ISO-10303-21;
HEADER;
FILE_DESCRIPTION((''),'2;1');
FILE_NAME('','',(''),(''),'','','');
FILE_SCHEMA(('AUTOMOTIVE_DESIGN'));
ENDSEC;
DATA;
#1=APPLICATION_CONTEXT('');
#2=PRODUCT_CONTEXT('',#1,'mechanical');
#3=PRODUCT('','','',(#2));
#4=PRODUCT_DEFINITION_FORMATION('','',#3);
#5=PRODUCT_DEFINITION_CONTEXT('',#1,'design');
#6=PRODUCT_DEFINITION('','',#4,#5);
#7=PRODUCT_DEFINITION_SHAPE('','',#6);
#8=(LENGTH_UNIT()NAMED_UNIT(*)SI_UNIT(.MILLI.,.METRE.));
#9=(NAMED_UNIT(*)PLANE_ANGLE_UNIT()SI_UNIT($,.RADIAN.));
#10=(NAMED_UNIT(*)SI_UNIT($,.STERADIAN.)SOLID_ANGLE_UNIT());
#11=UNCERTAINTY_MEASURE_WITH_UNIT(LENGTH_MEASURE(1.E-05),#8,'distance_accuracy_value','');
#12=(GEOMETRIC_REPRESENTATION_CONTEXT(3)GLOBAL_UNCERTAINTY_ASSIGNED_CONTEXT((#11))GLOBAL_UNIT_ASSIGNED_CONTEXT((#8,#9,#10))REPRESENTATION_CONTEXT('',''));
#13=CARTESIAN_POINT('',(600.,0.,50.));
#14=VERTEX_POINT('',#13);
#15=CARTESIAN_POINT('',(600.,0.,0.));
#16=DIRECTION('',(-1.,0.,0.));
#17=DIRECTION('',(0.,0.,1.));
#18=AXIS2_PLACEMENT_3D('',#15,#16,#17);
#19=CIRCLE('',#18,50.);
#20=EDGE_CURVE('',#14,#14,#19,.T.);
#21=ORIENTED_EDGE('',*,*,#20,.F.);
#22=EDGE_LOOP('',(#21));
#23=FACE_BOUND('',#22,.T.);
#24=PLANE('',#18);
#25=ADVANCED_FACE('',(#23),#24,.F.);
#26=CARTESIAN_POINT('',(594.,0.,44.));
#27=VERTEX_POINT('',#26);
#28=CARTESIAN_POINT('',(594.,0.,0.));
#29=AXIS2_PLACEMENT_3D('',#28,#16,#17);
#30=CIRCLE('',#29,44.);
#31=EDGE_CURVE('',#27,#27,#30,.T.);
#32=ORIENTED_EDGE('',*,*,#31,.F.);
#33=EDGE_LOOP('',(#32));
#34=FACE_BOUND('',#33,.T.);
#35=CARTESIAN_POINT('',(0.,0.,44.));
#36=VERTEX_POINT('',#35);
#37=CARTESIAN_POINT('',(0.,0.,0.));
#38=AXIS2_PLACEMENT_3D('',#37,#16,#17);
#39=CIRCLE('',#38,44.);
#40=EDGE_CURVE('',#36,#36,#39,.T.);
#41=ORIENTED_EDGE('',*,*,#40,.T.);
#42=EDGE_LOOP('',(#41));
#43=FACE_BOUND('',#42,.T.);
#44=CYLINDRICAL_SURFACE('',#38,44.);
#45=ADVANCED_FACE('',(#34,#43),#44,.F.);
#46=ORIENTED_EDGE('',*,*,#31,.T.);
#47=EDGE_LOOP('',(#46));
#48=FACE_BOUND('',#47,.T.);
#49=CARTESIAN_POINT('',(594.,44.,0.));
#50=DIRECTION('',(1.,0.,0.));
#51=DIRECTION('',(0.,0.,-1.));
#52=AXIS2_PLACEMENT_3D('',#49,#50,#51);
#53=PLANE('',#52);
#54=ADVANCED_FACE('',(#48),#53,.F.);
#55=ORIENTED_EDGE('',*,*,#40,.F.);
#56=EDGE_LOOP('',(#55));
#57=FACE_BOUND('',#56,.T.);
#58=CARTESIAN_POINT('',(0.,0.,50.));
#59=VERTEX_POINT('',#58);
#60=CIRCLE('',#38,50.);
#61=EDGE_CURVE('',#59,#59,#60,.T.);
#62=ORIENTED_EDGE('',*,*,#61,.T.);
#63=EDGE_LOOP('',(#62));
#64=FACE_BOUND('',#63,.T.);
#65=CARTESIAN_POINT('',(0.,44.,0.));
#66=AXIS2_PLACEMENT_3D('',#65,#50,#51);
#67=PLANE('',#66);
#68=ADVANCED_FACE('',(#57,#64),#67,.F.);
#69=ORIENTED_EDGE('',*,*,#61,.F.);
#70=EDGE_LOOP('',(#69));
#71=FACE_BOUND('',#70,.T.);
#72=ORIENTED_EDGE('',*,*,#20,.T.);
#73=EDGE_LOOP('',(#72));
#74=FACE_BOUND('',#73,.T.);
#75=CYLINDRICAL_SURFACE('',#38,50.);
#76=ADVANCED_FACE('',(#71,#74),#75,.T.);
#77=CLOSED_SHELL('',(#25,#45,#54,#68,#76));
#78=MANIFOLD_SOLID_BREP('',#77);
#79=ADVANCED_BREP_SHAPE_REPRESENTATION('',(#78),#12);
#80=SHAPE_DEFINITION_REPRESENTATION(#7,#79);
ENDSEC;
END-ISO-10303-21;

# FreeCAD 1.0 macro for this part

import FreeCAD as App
import Part
import Sketcher

V = App.Vector

doc = App.newDocument("Part")
body = doc.addObject("PartDesign::Body", "Body")

# Sketch on XY plane
sketch1 = body.newObject("Sketcher::SketchObject", "Sketch")
sketch1.AttachmentSupport = (doc.getObject("XY_Plane"), [""])
sketch1.MapMode = "FlatFace"
sketch1.addGeometry([
    Part.LineSegment(V(594, 44, 0), V(594, 0, 0)),  # 0
    Part.LineSegment(V(594, 0, 0), V(600, 0, 0)),  # 1
    Part.LineSegment(V(600, 0, 0), V(600, 50, 0)),  # 2
    Part.LineSegment(V(600, 50, 0), V(0, 50, 0)),  # 3
    Part.LineSegment(V(0, 50, 0), V(0, 44, 0)),  # 4
    Part.LineSegment(V(0, 44, 0), V(594, 44, 0)),  # 5
], False)
sketch1.addConstraint([
    Sketcher.Constraint("Coincident", 0, 2, 1, 1),
    Sketcher.Constraint("Coincident", 1, 2, 2, 1),
    Sketcher.Constraint("Coincident", 2, 2, 3, 1),
    Sketcher.Constraint("Coincident", 3, 2, 4, 1),
    Sketcher.Constraint("Coincident", 4, 2, 5, 1),
    Sketcher.Constraint("Coincident", 5, 2, 0, 1),
    Sketcher.Constraint("Vertical", 0),
    Sketcher.Constraint("Horizontal", 1),
    Sketcher.Constraint("Vertical", 2),
    Sketcher.Constraint("Horizontal", 3),
    Sketcher.Constraint("Vertical", 4),
    Sketcher.Constraint("Horizontal", 5),
    Sketcher.Constraint("PointOnObject", 0, 2, -1),
    Sketcher.Constraint("PointOnObject", 3, 2, -2),
    Sketcher.Constraint("Equal", 1, 4),
    Sketcher.Constraint("DistanceX", 1, 1, 1, 2, 6.0),
    Sketcher.Constraint("DistanceX", 3, 2, 3, 1, 600.0),
    Sketcher.Constraint("DistanceY", 0, 2, 0, 1, 44.0),
])
revolution = body.newObject("PartDesign::Revolution", "Revolution")
revolution.Profile = sketch1
revolution.ReferenceAxis = (sketch1, ["H_Axis"])
revolution.Angle = 360

doc.recompute()
